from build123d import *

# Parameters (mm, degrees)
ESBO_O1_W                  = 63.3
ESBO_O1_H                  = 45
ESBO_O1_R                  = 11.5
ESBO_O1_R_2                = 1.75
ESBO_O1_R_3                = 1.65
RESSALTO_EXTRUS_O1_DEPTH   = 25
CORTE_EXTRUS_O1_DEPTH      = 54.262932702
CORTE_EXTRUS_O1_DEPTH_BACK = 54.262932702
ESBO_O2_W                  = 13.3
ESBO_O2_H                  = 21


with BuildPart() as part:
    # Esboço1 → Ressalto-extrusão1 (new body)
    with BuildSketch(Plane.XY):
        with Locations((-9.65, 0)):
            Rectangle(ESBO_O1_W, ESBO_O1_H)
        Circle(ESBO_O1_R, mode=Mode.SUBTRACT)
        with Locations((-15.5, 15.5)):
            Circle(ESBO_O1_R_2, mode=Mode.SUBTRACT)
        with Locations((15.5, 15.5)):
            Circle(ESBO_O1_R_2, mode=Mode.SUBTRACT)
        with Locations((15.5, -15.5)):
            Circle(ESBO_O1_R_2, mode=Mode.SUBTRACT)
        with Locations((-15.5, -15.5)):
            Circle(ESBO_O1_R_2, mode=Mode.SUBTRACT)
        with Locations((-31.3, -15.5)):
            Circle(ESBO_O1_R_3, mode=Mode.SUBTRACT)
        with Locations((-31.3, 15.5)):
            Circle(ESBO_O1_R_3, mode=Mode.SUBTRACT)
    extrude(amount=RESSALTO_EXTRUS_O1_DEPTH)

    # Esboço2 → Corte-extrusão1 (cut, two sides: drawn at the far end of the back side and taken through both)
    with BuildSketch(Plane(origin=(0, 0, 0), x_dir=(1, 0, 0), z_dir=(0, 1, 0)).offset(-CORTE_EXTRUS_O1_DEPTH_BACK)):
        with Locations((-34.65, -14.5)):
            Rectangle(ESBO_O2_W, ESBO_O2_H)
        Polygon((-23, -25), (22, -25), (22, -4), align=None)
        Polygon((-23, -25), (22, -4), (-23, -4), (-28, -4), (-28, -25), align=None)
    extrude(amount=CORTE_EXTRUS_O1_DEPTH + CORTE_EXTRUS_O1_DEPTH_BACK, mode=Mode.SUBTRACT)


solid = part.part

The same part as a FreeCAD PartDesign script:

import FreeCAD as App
import Part
import Sketcher

V = App.Vector

doc = App.newDocument("Part")
body = doc.addObject("PartDesign::Body", "Body")

# Sketch on XY plane
sketch1 = body.newObject("Sketcher::SketchObject", "Sketch")
sketch1.AttachmentSupport = (doc.getObject("XY_Plane"), [""])
sketch1.MapMode = "FlatFace"
sketch1.addGeometry([
    Part.LineSegment(V(-41.3, 22.5, 0), V(-41.3, -22.5, 0)),  # 0
    Part.LineSegment(V(-41.3, -22.5, 0), V(22, -22.5, 0)),  # 1
    Part.LineSegment(V(22, -22.5, 0), V(22, 22.5, 0)),  # 2
    Part.LineSegment(V(22, 22.5, 0), V(-41.3, 22.5, 0)),  # 3
    Part.Circle(V(-31.3, -15.5, 0), V(0, 0, 1), 1.65),  # 4
    Part.Circle(V(-15.5, -15.5, 0), V(0, 0, 1), 1.75),  # 5
    Part.Circle(V(15.5, -15.5, 0), V(0, 0, 1), 1.75),  # 6
    Part.Circle(V(-31.3, 15.5, 0), V(0, 0, 1), 1.65),  # 7
    Part.Circle(V(-15.5, 15.5, 0), V(0, 0, 1), 1.75),  # 8
    Part.Circle(V(0, 0, 0), V(0, 0, 1), 11.5),  # 9
    Part.Circle(V(15.5, 15.5, 0), V(0, 0, 1), 1.75),  # 10
], False)
sketch1.addConstraint([
    Sketcher.Constraint("Coincident", 0, 2, 1, 1),
    Sketcher.Constraint("Coincident", 1, 2, 2, 1),
    Sketcher.Constraint("Coincident", 2, 2, 3, 1),
    Sketcher.Constraint("Coincident", 3, 2, 0, 1),
    Sketcher.Constraint("Vertical", 0),
    Sketcher.Constraint("Horizontal", 1),
    Sketcher.Constraint("Vertical", 2),
    Sketcher.Constraint("Horizontal", 3),
    Sketcher.Constraint("Coincident", 9, 3, -1, 1),
    Sketcher.Constraint("Equal", 5, 6),
    Sketcher.Constraint("Equal", 4, 7),
    Sketcher.Constraint("Equal", 6, 8),
    Sketcher.Constraint("Equal", 8, 10),
    Sketcher.Constraint("Symmetric", 6, 3, 8, 3, -1, 1),
    Sketcher.Constraint("Symmetric", 5, 3, 10, 3, -1, 1),
    Sketcher.Constraint("Symmetric", 5, 3, 6, 3, -2),
    Sketcher.Constraint("Symmetric", 4, 3, 7, 3, -1),
    Sketcher.Constraint("Horizontal", 4, 3, 5, 3),
    Sketcher.Constraint("Diameter", 9, 23.0),
    Sketcher.Constraint("Diameter", 4, 3.3),
    Sketcher.Constraint("Diameter", 5, 3.5),
    Sketcher.Constraint("DistanceY", 0, 2, 0, 1, 45.0),
    Sketcher.Constraint("DistanceX", 1, 1, 1, 2, 63.3),
    Sketcher.Constraint("DistanceX", -1, 1, 1, 2, 22.0),
    Sketcher.Constraint("DistanceX", 5, 3, 6, 3, 31.0),
    Sketcher.Constraint("DistanceY", 4, 3, 7, 3, 31.0),
    Sketcher.Constraint("DistanceX", 0, 2, 4, 3, 10.0),
    Sketcher.Constraint("DistanceY", 0, 2, 4, 3, 7.0),
])
pad1 = body.newObject("PartDesign::Pad", "Pad")
pad1.Profile = sketch1
pad1.Length = 25

# Sketch on XZ plane
sketch2 = body.newObject("Sketcher::SketchObject", "Sketch001")
sketch2.AttachmentSupport = (doc.getObject("XZ_Plane"), [""])
sketch2.MapMode = "FlatFace"
sketch2.addGeometry([
    Part.LineSegment(V(-41.3, 4, 0), V(-41.3, 25, 0)),
    Part.LineSegment(V(-41.3, 25, 0), V(22, 25, 0)),
    Part.LineSegment(V(22, 25, 0), V(22, 4, 0)),
    Part.LineSegment(V(22, 4, 0), V(-41.3, 4, 0)),
], False)
sketch2.addConstraint([
    Sketcher.Constraint("Coincident", 0, 2, 1, 1),
    Sketcher.Constraint("Coincident", 1, 2, 2, 1),
    Sketcher.Constraint("Coincident", 2, 2, 3, 1),
    Sketcher.Constraint("Coincident", 3, 2, 0, 1),
    Sketcher.Constraint("Vertical", 0),
    Sketcher.Constraint("Horizontal", 1),
    Sketcher.Constraint("Vertical", 2),
    Sketcher.Constraint("Horizontal", 3),
    Sketcher.Constraint("DistanceY", 0, 1, 0, 2, 21.0),
    Sketcher.Constraint("DistanceX", 1, 1, 1, 2, 63.3),
    Sketcher.Constraint("DistanceY", -1, 1, 0, 2, 25.0),
    Sketcher.Constraint("DistanceX", -1, 1, 1, 2, 22.0),
])
pocket1 = body.newObject("PartDesign::Pocket", "Pocket")
pocket1.Profile = sketch2
pocket1.Type = "ThroughAll"
pocket1.Midplane = True

doc.recompute()
